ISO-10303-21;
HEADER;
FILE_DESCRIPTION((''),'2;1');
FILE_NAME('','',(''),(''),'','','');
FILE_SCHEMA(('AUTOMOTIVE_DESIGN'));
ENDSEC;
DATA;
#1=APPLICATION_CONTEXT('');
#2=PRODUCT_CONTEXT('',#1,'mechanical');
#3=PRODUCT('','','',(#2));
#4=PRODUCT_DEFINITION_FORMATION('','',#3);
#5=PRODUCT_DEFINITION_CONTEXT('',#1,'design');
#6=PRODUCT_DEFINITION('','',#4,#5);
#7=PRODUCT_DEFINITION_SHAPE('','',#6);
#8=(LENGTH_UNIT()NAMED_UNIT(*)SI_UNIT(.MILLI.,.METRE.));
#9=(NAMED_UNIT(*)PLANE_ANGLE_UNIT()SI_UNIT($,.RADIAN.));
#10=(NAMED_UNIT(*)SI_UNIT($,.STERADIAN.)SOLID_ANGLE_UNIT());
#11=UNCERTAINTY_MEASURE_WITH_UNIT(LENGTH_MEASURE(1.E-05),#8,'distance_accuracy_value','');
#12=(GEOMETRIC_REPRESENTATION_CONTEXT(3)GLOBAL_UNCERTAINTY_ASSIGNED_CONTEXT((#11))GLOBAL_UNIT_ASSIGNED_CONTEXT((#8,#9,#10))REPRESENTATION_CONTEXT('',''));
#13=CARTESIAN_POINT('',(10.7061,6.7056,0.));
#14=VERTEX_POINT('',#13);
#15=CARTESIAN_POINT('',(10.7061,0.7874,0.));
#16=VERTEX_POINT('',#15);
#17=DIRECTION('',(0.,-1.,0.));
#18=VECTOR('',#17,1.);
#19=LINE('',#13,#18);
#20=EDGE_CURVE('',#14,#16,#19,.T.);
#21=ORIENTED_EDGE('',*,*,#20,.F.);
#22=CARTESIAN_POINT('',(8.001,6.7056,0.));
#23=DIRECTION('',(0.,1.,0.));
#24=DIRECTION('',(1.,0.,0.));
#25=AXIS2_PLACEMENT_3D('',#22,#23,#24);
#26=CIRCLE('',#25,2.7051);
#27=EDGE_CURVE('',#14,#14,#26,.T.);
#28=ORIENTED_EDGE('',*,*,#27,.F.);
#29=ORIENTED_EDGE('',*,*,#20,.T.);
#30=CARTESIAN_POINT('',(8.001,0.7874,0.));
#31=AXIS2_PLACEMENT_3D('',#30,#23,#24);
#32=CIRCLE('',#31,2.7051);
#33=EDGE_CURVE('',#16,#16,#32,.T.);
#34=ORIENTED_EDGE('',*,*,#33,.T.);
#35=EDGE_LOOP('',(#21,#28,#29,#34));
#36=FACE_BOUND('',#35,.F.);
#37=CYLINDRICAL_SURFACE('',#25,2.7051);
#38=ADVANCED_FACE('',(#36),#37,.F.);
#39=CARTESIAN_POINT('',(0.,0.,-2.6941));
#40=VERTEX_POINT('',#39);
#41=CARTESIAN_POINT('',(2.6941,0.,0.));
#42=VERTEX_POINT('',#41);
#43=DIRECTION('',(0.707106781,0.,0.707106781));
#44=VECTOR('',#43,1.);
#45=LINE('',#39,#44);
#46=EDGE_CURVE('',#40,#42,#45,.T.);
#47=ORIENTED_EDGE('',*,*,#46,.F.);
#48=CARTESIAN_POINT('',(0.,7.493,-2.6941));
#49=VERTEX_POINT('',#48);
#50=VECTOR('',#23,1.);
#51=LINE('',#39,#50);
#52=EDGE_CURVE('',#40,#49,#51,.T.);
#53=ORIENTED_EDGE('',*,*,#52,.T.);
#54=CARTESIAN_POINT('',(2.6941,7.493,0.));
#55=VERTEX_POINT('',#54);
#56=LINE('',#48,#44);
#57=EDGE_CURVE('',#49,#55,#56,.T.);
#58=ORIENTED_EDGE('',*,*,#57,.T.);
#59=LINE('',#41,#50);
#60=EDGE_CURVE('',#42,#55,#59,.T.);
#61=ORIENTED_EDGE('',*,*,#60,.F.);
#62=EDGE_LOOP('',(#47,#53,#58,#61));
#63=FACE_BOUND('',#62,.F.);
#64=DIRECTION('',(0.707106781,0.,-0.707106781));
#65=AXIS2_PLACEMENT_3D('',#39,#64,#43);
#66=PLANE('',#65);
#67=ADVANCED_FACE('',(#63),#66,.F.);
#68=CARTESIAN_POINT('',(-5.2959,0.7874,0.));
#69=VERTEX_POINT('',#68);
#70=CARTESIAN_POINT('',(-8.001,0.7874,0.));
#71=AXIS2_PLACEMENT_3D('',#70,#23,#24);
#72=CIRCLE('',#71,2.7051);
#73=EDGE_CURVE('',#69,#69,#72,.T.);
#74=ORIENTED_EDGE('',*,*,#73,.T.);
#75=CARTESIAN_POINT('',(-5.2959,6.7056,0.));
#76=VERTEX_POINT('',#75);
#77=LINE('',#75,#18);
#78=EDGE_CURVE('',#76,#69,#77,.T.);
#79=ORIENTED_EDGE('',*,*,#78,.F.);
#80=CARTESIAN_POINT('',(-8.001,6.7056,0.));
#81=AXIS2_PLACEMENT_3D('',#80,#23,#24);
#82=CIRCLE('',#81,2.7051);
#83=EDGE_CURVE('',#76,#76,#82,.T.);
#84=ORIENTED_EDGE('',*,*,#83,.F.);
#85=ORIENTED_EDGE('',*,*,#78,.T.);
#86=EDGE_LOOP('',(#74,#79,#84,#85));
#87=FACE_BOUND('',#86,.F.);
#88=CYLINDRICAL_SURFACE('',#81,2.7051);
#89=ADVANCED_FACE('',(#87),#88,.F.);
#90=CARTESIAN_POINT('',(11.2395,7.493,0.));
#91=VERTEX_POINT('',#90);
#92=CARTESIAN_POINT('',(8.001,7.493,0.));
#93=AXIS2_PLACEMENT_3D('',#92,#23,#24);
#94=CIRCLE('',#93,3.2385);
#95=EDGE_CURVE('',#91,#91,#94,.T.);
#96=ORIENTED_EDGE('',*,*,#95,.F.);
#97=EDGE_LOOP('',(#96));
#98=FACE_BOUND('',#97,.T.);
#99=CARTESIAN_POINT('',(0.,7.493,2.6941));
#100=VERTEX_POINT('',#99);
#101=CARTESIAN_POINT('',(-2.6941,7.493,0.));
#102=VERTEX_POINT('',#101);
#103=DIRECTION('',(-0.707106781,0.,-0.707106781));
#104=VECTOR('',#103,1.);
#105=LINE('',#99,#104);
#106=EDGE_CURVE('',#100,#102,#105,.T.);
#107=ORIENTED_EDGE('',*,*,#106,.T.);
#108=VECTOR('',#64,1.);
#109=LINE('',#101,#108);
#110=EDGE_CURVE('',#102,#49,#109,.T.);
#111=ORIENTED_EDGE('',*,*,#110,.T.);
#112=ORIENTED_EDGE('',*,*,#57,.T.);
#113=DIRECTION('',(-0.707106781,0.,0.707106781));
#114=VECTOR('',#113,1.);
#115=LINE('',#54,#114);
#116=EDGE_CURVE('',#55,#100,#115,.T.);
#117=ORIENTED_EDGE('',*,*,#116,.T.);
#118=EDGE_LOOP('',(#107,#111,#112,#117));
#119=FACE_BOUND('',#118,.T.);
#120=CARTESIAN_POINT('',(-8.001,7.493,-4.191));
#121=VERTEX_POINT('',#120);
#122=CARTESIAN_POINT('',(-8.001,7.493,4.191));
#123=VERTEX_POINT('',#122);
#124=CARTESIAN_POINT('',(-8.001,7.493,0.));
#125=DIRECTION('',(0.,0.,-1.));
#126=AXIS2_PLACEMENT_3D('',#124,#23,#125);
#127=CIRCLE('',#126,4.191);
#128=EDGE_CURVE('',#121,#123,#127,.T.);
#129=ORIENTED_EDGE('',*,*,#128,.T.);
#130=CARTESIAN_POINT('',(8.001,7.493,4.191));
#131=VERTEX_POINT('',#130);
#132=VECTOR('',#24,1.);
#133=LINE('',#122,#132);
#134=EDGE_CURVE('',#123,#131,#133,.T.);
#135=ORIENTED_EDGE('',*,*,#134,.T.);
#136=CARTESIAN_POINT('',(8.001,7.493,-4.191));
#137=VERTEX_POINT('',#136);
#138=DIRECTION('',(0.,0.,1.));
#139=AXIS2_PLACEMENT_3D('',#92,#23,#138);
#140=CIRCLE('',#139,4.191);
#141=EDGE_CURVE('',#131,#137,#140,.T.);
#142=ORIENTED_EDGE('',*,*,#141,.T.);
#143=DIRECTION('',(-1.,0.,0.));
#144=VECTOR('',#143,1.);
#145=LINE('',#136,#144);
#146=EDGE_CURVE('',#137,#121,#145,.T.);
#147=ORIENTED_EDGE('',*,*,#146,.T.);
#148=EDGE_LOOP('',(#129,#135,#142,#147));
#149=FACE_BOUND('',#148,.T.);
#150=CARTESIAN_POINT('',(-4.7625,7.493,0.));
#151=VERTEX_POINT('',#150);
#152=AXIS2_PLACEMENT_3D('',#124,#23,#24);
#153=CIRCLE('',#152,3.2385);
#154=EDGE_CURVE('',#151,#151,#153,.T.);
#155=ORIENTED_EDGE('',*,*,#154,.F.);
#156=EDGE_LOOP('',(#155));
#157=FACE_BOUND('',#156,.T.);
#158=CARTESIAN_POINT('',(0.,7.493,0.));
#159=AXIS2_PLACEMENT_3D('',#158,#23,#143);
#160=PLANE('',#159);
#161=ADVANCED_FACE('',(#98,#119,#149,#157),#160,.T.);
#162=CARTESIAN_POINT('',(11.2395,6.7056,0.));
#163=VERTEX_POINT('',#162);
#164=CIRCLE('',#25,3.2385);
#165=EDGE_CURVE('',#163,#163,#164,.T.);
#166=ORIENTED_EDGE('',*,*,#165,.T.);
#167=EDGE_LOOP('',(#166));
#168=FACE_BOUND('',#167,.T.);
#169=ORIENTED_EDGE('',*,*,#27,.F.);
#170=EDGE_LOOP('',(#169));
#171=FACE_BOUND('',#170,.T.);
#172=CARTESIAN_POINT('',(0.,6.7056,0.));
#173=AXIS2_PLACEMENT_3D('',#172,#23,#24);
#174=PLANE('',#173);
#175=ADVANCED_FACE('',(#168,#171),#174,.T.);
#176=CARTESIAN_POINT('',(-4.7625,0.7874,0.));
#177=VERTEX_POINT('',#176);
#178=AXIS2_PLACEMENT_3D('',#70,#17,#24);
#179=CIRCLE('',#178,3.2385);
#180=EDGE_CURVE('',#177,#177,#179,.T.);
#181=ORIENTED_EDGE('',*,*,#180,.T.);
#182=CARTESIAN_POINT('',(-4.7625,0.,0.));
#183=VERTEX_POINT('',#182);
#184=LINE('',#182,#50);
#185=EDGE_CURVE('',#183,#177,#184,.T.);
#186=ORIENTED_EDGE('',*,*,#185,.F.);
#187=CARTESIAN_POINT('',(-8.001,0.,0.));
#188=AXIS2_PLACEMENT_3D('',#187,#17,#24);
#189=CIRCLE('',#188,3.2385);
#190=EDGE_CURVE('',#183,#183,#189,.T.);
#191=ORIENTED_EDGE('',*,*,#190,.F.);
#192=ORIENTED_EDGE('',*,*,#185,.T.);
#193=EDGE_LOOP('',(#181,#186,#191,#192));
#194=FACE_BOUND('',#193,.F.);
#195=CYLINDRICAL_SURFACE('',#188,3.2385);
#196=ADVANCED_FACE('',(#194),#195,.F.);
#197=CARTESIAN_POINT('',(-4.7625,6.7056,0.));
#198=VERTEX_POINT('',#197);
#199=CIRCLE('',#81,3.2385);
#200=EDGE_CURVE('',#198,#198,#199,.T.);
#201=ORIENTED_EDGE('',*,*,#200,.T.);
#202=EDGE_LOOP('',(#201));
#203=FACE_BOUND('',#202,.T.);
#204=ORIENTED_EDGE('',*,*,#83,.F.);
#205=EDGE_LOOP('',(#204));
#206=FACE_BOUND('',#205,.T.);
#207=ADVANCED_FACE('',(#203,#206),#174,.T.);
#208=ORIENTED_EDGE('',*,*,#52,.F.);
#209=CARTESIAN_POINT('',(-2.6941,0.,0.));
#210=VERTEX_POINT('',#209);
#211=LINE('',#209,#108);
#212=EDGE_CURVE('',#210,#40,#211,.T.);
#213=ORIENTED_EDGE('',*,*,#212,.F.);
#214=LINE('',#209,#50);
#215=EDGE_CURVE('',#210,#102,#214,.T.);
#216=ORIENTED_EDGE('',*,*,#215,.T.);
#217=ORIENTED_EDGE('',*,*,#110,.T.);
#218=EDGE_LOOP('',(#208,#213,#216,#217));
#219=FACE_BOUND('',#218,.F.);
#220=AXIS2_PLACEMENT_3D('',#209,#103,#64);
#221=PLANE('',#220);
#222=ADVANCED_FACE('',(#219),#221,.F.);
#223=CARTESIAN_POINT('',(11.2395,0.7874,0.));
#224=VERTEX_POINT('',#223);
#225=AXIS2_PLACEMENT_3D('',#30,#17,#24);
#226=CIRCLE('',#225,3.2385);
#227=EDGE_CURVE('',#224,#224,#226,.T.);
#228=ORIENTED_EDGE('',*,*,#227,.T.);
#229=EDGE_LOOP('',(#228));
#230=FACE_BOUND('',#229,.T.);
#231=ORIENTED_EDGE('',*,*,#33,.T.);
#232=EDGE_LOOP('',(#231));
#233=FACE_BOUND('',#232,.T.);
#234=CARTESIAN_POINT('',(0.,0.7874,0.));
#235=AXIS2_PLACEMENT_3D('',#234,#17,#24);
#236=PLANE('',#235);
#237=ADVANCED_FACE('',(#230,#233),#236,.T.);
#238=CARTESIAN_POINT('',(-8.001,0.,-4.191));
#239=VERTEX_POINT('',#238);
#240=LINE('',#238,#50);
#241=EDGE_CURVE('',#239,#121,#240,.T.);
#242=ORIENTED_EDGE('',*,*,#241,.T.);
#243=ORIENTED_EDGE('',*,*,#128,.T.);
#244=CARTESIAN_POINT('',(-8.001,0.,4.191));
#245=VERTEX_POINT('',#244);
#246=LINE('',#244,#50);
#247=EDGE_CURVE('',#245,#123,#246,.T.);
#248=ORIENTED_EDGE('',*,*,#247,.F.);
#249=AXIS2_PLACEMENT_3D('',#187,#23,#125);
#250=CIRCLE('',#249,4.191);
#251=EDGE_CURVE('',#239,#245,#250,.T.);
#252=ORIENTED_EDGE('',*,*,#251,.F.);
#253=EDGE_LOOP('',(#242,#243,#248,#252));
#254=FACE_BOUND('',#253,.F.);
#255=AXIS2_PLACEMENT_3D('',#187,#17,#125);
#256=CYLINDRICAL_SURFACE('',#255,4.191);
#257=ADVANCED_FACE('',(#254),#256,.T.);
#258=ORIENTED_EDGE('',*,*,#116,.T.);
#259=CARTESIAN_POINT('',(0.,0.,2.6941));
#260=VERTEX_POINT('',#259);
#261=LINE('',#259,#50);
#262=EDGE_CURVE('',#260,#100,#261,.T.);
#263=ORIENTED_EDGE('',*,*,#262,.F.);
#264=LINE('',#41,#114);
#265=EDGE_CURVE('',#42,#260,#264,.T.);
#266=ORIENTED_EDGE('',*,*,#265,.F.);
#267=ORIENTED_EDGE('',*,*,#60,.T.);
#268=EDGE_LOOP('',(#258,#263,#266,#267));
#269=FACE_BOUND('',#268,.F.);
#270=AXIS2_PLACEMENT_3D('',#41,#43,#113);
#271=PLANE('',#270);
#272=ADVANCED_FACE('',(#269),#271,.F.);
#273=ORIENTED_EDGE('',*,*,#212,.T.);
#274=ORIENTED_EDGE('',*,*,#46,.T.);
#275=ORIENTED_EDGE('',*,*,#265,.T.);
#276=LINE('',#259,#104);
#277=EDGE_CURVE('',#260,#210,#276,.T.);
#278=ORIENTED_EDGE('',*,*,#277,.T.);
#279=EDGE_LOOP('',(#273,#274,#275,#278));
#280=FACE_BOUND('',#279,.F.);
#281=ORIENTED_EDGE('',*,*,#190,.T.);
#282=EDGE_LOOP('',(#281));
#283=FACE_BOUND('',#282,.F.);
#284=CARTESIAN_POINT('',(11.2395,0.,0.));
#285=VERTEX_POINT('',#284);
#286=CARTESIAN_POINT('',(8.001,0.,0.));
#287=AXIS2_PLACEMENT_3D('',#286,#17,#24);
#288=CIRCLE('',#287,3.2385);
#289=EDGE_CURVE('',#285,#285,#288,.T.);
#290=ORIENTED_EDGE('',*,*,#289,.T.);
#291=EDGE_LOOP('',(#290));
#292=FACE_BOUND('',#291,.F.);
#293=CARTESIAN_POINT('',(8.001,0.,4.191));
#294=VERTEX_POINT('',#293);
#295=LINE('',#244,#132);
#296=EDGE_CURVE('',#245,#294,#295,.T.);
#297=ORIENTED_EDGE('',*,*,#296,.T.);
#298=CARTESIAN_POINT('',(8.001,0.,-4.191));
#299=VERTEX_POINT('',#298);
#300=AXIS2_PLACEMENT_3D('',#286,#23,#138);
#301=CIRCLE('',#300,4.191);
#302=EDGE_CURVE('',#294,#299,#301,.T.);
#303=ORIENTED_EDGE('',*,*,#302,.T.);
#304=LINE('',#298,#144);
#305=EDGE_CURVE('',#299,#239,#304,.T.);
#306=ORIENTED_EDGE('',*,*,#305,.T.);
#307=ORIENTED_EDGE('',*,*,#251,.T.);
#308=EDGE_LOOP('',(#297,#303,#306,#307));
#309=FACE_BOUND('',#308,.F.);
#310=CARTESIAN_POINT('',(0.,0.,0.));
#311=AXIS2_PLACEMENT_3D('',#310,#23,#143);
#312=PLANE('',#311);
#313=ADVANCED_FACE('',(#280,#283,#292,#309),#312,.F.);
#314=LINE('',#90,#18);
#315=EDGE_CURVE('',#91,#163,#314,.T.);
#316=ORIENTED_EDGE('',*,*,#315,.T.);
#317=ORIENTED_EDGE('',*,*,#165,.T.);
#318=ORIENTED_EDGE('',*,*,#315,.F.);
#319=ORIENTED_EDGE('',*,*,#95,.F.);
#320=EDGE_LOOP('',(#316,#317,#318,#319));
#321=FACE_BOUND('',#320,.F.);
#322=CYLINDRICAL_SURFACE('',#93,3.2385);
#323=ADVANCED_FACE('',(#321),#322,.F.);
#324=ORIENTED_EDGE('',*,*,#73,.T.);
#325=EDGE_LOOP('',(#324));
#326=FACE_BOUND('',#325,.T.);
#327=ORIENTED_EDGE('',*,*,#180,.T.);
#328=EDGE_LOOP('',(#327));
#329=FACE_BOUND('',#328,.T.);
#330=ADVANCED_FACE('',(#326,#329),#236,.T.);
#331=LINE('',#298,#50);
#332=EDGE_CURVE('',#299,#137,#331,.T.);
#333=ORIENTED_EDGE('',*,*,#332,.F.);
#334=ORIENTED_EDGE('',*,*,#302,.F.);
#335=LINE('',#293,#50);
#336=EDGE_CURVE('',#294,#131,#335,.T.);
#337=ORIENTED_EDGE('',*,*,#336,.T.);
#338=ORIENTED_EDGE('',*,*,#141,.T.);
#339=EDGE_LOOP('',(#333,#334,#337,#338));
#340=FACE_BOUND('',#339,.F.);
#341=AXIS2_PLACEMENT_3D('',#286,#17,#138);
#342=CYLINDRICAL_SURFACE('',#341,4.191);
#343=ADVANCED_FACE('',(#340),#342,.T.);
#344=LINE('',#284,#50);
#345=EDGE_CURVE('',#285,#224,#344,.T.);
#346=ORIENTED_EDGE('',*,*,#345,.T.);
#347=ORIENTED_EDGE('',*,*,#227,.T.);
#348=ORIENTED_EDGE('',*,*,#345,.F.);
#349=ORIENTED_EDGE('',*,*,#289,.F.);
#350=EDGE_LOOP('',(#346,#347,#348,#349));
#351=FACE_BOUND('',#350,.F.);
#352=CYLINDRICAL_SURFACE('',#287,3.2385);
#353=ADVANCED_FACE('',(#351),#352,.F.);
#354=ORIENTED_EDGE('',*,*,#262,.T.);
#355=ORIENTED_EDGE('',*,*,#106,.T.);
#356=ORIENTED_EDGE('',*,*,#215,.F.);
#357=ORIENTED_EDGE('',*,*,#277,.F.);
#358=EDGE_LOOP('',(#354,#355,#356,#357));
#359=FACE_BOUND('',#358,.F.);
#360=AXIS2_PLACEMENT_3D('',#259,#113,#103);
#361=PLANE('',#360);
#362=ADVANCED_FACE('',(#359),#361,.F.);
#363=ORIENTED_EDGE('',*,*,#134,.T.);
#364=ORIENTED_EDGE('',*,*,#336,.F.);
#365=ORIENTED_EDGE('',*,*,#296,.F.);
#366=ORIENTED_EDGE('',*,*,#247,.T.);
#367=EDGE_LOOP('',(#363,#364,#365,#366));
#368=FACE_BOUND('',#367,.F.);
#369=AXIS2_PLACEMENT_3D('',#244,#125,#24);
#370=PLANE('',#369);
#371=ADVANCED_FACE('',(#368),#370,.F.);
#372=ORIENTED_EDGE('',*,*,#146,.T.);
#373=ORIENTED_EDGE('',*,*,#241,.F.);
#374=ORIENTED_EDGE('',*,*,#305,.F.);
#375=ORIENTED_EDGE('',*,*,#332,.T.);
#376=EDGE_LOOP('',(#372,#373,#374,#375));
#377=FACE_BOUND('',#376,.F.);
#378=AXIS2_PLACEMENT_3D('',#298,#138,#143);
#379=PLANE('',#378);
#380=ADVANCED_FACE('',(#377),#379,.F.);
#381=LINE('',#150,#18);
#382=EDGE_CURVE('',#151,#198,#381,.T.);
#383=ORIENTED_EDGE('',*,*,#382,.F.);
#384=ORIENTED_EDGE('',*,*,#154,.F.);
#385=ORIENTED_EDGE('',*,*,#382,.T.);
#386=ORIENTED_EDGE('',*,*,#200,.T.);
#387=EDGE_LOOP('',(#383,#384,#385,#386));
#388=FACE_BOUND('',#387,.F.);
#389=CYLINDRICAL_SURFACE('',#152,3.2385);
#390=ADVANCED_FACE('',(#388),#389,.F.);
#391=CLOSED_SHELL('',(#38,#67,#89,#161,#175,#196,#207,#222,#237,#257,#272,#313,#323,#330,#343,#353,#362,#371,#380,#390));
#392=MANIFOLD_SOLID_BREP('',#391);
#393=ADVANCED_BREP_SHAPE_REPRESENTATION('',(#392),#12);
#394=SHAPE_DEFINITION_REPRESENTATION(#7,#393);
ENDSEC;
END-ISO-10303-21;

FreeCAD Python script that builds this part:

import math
import FreeCAD as App
import Part
import Sketcher

V = App.Vector
Q = App.Units.Quantity

doc = App.newDocument("Part")
body = doc.addObject("PartDesign::Body", "Body")

# Sketch on XZ plane
sketch1 = body.newObject("Sketcher::SketchObject", "Sketch")
sketch1.AttachmentSupport = (doc.getObject("XZ_Plane"), [""])
sketch1.MapMode = "FlatFace"
sketch1.addGeometry([
    Part.ArcOfCircle(Part.Circle(V(8, 0, 0), V(0, 0, 1), 4.2), math.radians(-90), math.radians(90)),  # 0
    Part.LineSegment(V(8, -4.2, 0), V(-8, -4.2, 0)),  # 1
    Part.ArcOfCircle(Part.Circle(V(-8, 0, 0), V(0, 0, 1), 4.2), math.radians(90), math.radians(270)),  # 2
    Part.LineSegment(V(-8, 4.2, 0), V(8, 4.2, 0)),  # 3
    Part.LineSegment(V(0, -2.7, 0), V(2.7, 0, 0)),  # 4
    Part.LineSegment(V(2.7, 0, 0), V(0, 2.7, 0)),  # 5
    Part.LineSegment(V(0, 2.7, 0), V(-2.7, 0, 0)),  # 6
    Part.LineSegment(V(-2.7, 0, 0), V(0, -2.7, 0)),  # 7
], False)
sketch1.addConstraint([
    Sketcher.Constraint("Tangent", 0, 1, 1, 1),
    Sketcher.Constraint("Tangent", 1, 2, 2, 2),
    Sketcher.Constraint("Tangent", 2, 1, 3, 1),
    Sketcher.Constraint("Tangent", 3, 2, 0, 2),
    Sketcher.Constraint("Coincident", 4, 2, 5, 1),
    Sketcher.Constraint("Coincident", 5, 2, 6, 1),
    Sketcher.Constraint("Coincident", 6, 2, 7, 1),
    Sketcher.Constraint("Coincident", 7, 2, 4, 1),
    Sketcher.Constraint("Horizontal", 1),
    Sketcher.Constraint("Horizontal", 3),
    Sketcher.Constraint("Symmetric", 0, 3, 2, 3, -1, 1),
    Sketcher.Constraint("Symmetric", 4, 2, 6, 2, -1, 1),
    Sketcher.Constraint("Symmetric", 5, 2, 7, 2, -1, 1),
    Sketcher.Constraint("PointOnObject", 4, 2, -1),
    Sketcher.Constraint("PointOnObject", 5, 2, -2),
    Sketcher.Constraint("Perpendicular", 4, 5),
    Sketcher.Constraint("Radius", 0, Q("0.165 in")),
    Sketcher.Constraint("Distance", 4, Q("0.15 in")),
    Sketcher.Constraint("DistanceX", -1, 1, 0, 3, Q("0.315 in")),
])
pad1 = body.newObject("PartDesign::Pad", "Pad")
pad1.Profile = sketch1
pad1.Length = Q("0.295 in")
pad1.Reversed = True

# Sketch on XZ plane
sketch2 = body.newObject("Sketcher::SketchObject", "Sketch001")
sketch2.AttachmentSupport = (doc.getObject("XZ_Plane"), [""])
sketch2.MapMode = "FlatFace"
sketch2.AttachmentOffset = App.Placement(V(0, 0, -0.295 * 25.4), App.Rotation())
sketch2.addGeometry(Part.Circle(V(-8, 0, 0), V(0, 0, 1), 3.2), False)
sketch2.addConstraint([
    Sketcher.Constraint("PointOnObject", 0, 3, -1),
    Sketcher.Constraint("Diameter", 0, Q("0.255 in")),
    Sketcher.Constraint("DistanceX", 0, 3, -1, 1, Q("0.315 in")),
])
pocket1 = body.newObject("PartDesign::Pocket", "Pocket")
pocket1.Profile = sketch2
pocket1.Length = Q("0.031 in")
pocket1.Reversed = True

# Sketch on XZ plane
sketch3 = body.newObject("Sketcher::SketchObject", "Sketch002")
sketch3.AttachmentSupport = (doc.getObject("XZ_Plane"), [""])
sketch3.MapMode = "FlatFace"
sketch3.AttachmentOffset = App.Placement(V(0, 0, -0.295 * 25.4), App.Rotation())
sketch3.addGeometry(Part.Circle(V(8, 0, 0), V(0, 0, 1), 3.2), False)
sketch3.addConstraint([
    Sketcher.Constraint("PointOnObject", 0, 3, -1),
    Sketcher.Constraint("Diameter", 0, Q("0.255 in")),
    Sketcher.Constraint("DistanceX", -1, 1, 0, 3, Q("0.315 in")),
])
pocket2 = body.newObject("PartDesign::Pocket", "Pocket001")
pocket2.Profile = sketch3
pocket2.Length = Q("0.031 in")
pocket2.Reversed = True

# Sketch on XZ plane
sketch4 = body.newObject("Sketcher::SketchObject", "Sketch003")
sketch4.AttachmentSupport = (doc.getObject("XZ_Plane"), [""])
sketch4.MapMode = "FlatFace"
sketch4.addGeometry(Part.Circle(V(8, 0, 0), V(0, 0, 1), 3.2), False)
sketch4.addConstraint([
    Sketcher.Constraint("PointOnObject", 0, 3, -1),
    Sketcher.Constraint("Diameter", 0, Q("0.255 in")),
    Sketcher.Constraint("DistanceX", -1, 1, 0, 3, Q("0.315 in")),
])
pocket3 = body.newObject("PartDesign::Pocket", "Pocket002")
pocket3.Profile = sketch4
pocket3.Length = Q("0.031 in")

# Sketch on XZ plane
sketch5 = body.newObject("Sketcher::SketchObject", "Sketch004")
sketch5.AttachmentSupport = (doc.getObject("XZ_Plane"), [""])
sketch5.MapMode = "FlatFace"
sketch5.addGeometry(Part.Circle(V(-8, 0, 0), V(0, 0, 1), 3.2), False)
sketch5.addConstraint([
    Sketcher.Constraint("PointOnObject", 0, 3, -1),
    Sketcher.Constraint("Diameter", 0, Q("0.255 in")),
    Sketcher.Constraint("DistanceX", 0, 3, -1, 1, Q("0.315 in")),
])
pocket4 = body.newObject("PartDesign::Pocket", "Pocket003")
pocket4.Profile = sketch5
pocket4.Length = Q("0.031 in")

# Sketch on XZ plane
sketch6 = body.newObject("Sketcher::SketchObject", "Sketch005")
sketch6.AttachmentSupport = (doc.getObject("XZ_Plane"), [""])
sketch6.MapMode = "FlatFace"
sketch6.AttachmentOffset = App.Placement(V(0, 0, -0.264 * 25.4), App.Rotation())
sketch6.addGeometry(Part.Circle(V(-8, 0, 0), V(0, 0, 1), 2.7), False)
sketch6.addConstraint([
    Sketcher.Constraint("PointOnObject", 0, 3, -1),
    Sketcher.Constraint("Diameter", 0, Q("0.213 in")),
    Sketcher.Constraint("DistanceX", 0, 3, -1, 1, Q("0.315 in")),
])
pocket5 = body.newObject("PartDesign::Pocket", "Pocket004")
pocket5.Profile = sketch6
pocket5.Type = "ThroughAll"
pocket5.Reversed = True

# Sketch on XZ plane
sketch7 = body.newObject("Sketcher::SketchObject", "Sketch006")
sketch7.AttachmentSupport = (doc.getObject("XZ_Plane"), [""])
sketch7.MapMode = "FlatFace"
sketch7.AttachmentOffset = App.Placement(V(0, 0, -0.264 * 25.4), App.Rotation())
sketch7.addGeometry(Part.Circle(V(8, 0, 0), V(0, 0, 1), 2.7), False)
sketch7.addConstraint([
    Sketcher.Constraint("PointOnObject", 0, 3, -1),
    Sketcher.Constraint("Diameter", 0, Q("0.213 in")),
    Sketcher.Constraint("DistanceX", -1, 1, 0, 3, Q("0.315 in")),
])
pocket6 = body.newObject("PartDesign::Pocket", "Pocket005")
pocket6.Profile = sketch7
pocket6.Type = "ThroughAll"
pocket6.Reversed = True

doc.recompute()
